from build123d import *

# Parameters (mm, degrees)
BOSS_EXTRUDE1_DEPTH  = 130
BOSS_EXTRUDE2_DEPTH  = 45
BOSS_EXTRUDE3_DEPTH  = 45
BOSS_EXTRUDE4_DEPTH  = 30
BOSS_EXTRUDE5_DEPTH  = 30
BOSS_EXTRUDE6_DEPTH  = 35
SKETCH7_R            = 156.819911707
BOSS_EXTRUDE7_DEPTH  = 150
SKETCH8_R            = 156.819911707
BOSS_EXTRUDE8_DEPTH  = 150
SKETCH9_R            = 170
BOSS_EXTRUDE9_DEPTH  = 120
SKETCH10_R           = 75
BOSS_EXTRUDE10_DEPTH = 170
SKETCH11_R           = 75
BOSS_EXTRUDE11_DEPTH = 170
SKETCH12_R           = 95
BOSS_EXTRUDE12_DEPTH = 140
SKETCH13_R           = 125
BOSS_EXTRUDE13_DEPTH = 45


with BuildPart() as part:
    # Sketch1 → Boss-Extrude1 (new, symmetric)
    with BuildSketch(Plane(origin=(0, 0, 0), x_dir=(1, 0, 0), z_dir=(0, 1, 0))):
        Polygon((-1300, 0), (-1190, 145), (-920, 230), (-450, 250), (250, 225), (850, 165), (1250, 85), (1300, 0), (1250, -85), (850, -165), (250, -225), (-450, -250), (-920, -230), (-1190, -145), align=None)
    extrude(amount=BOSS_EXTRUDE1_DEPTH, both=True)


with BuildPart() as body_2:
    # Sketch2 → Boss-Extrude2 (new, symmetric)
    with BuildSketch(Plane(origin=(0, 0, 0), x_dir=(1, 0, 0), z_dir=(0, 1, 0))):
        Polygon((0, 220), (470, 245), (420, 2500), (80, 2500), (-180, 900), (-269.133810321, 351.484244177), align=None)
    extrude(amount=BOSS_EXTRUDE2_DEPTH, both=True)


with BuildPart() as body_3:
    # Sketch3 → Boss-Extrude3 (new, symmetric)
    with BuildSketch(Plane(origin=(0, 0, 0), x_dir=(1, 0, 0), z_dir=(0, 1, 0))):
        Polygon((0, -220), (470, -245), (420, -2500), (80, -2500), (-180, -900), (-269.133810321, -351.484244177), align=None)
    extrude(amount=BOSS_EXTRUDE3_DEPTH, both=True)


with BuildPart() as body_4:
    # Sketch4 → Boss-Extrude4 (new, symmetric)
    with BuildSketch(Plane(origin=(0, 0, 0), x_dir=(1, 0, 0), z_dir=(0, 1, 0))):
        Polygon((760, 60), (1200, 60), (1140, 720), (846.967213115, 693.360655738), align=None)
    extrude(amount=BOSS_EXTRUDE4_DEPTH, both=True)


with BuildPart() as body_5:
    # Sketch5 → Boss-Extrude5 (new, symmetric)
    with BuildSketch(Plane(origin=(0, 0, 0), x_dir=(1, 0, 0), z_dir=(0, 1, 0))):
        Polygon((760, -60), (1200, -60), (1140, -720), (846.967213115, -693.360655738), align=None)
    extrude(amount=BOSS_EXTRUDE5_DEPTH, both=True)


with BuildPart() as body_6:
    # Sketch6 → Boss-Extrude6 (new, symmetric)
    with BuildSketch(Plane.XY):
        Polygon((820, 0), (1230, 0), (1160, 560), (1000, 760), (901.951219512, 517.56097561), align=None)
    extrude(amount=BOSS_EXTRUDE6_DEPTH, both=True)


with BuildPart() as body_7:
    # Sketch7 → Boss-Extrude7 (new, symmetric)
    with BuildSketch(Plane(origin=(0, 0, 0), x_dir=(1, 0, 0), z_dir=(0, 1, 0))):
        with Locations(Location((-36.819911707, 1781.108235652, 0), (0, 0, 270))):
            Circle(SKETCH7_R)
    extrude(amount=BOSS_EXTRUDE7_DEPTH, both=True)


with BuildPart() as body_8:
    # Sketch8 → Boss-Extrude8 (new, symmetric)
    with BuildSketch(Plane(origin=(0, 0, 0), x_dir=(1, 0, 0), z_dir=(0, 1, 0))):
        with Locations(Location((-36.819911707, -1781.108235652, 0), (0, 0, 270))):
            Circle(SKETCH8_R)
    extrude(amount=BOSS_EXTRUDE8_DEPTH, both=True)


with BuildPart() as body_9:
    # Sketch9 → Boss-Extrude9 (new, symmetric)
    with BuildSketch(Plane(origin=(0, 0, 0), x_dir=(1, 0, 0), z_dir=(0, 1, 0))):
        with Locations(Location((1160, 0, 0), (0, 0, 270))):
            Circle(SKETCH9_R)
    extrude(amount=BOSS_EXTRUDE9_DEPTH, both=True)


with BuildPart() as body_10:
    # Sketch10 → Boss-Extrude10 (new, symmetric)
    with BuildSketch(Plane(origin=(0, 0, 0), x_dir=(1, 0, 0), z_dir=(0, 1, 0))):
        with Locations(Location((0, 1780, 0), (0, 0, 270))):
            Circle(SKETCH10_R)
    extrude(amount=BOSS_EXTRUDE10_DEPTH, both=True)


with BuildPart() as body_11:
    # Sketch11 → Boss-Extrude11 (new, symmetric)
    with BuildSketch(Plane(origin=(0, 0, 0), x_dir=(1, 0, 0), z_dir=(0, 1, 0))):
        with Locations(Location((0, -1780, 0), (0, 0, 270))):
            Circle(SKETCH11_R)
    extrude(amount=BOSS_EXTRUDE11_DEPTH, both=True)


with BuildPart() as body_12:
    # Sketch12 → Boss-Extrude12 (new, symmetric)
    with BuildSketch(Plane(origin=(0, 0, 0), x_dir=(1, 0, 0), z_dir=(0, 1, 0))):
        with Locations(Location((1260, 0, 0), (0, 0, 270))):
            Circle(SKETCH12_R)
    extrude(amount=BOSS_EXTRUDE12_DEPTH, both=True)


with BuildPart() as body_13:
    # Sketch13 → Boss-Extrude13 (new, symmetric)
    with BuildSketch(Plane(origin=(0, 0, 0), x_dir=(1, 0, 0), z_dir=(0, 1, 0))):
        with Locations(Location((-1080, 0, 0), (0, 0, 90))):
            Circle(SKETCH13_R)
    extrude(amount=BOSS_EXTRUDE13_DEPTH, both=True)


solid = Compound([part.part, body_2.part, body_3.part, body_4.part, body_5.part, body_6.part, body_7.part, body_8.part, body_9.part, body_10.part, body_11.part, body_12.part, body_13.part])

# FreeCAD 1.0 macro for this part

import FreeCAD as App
import Part
import Sketcher
Q = App.Units.Quantity


def add_polygon(sketch, points):
    """Adds a closed chain of lines whose ends are joined by coincident constraints."""
    first, n = sketch.GeometryCount, len(points)
    for a, b in zip(points, points[1:] + points[:1]):
        sketch.addGeometry(Part.LineSegment(App.Vector(*a, 0), App.Vector(*b, 0)), False)
    for i in range(n):
        sketch.addConstraint(Sketcher.Constraint("Coincident", first + i, 2, first + (i + 1) % n, 1))

doc = App.newDocument("Part")
body = doc.addObject("PartDesign::Body", "Body")

sketch1 = doc.addObject("Sketcher::SketchObject", "Sketch")
body.addObject(sketch1)
sketch1.AttachmentSupport = (doc.XZ_Plane, [""])
sketch1.MapMode = "FlatFace"
add_polygon(sketch1, [(-1190, -145), (-1300, 0), (-1190, 145), (-920, 230), (-450, 250), (250, 225), (850, 165), (1250, 85), (1300, 0), (1250, -85), (850, -165), (250, -225), (-450, -250), (-920, -230)])
sketch1.addConstraint([
    Sketcher.Constraint("Symmetric", 0, 2, 7, 2, -1, 1),
    Sketcher.Constraint("Symmetric", 6, 2, 8, 2, -1),
    Sketcher.Constraint("Symmetric", 5, 2, 9, 2, -1),
    Sketcher.Constraint("Symmetric", 4, 2, 10, 2, -1),
    Sketcher.Constraint("Symmetric", 3, 2, 11, 2, -1),
    Sketcher.Constraint("Symmetric", 2, 2, 12, 2, -1),
    Sketcher.Constraint("Symmetric", 1, 2, 13, 2, -1),
    Sketcher.Constraint("PointOnObject", 0, 2, -1),
    Sketcher.Constraint("DistanceX", 0, 2, -1, 1, Q("1300 mm")),
    Sketcher.Constraint("DistanceX", 1, 2, -1, 1, Q("1190 mm")),
    Sketcher.Constraint("DistanceY", -1, 1, 1, 2, Q("145 mm")),
    Sketcher.Constraint("DistanceX", 2, 2, -1, 1, Q("920 mm")),
    Sketcher.Constraint("DistanceY", -1, 1, 2, 2, Q("230 mm")),
    Sketcher.Constraint("DistanceX", 3, 2, -1, 1, Q("450 mm")),
    Sketcher.Constraint("DistanceY", -1, 1, 3, 2, Q("250 mm")),
    Sketcher.Constraint("DistanceX", -1, 1, 4, 2, Q("250 mm")),
    Sketcher.Constraint("DistanceY", -1, 1, 4, 2, Q("225 mm")),
    Sketcher.Constraint("DistanceX", -1, 1, 5, 2, Q("850 mm")),
    Sketcher.Constraint("DistanceY", -1, 1, 5, 2, Q("165 mm")),
    Sketcher.Constraint("DistanceX", -1, 1, 6, 2, Q("1250 mm")),
    Sketcher.Constraint("DistanceY", -1, 1, 6, 2, Q("85 mm")),
])
pad1 = doc.addObject("PartDesign::Pad", "Pad")
body.addObject(pad1)
pad1.Profile = sketch1
pad1.Length = 260
pad1.Midplane = True
body2 = doc.addObject("PartDesign::Body", "Body001")

sketch2 = doc.addObject("Sketcher::SketchObject", "Sketch001")
body2.addObject(sketch2)
sketch2.AttachmentSupport = (doc.getObject("XZ_Plane001"), [""])
sketch2.MapMode = "FlatFace"
add_polygon(sketch2, [(0, -220), (470, -245), (420, -2500), (80, -2500), (-269, -351)])
sketch2.addConstraint([
    Sketcher.Constraint("Horizontal", 2),
    Sketcher.Constraint("PointOnObject", 4, 2, -2),
    Sketcher.Constraint("DistanceX", 2, 2, 2, 1, Q("340 mm")),
    Sketcher.Constraint("DistanceX", -1, 1, 0, 2, Q("470 mm")),
    Sketcher.Constraint("DistanceY", 0, 2, -1, 1, Q("245 mm")),
    Sketcher.Constraint("DistanceX", -1, 1, 1, 2, Q("420 mm")),
    Sketcher.Constraint("DistanceY", 1, 2, -1, 1, Q("2500 mm")),
    Sketcher.Constraint("DistanceY", 4, 2, -1, 1, Q("220 mm")),
    Sketcher.Constraint("Distance", 4, Q("299.53483 mm")),
    Sketcher.Constraint("DistanceX", 3, 2, -1, 1, Q("269.13381 mm")),
])
pad2 = doc.addObject("PartDesign::Pad", "Pad001")
body2.addObject(pad2)
pad2.Profile = sketch2
pad2.Length = 90
pad2.Midplane = True
body3 = doc.addObject("PartDesign::Body", "Body002")

sketch3 = doc.addObject("Sketcher::SketchObject", "Sketch002")
body3.addObject(sketch3)
sketch3.AttachmentSupport = (doc.getObject("XZ_Plane002"), [""])
sketch3.MapMode = "FlatFace"
add_polygon(sketch3, [(470, 245), (0, 220), (-269, 351), (80, 2500), (420, 2500)])
sketch3.addConstraint([
    Sketcher.Constraint("Horizontal", 3),
    Sketcher.Constraint("PointOnObject", 0, 2, -2),
    Sketcher.Constraint("DistanceX", 3, 1, 3, 2, Q("340 mm")),
    Sketcher.Constraint("DistanceY", -1, 1, 0, 2, Q("220 mm")),
    Sketcher.Constraint("DistanceX", -1, 1, 2, 2, Q("80 mm")),
    Sketcher.Constraint("DistanceY", -1, 1, 2, 2, Q("2500 mm")),
    Sketcher.Constraint("DistanceX", -1, 1, 4, 2, Q("470 mm")),
    Sketcher.Constraint("DistanceY", -1, 1, 4, 2, Q("245 mm")),
    Sketcher.Constraint("Distance", 1, Q("299.53483 mm")),
    Sketcher.Constraint("DistanceX", 1, 2, -1, 1, Q("269.13381 mm")),
])
pad3 = doc.addObject("PartDesign::Pad", "Pad002")
body3.addObject(pad3)
pad3.Profile = sketch3
pad3.Length = 90
pad3.Midplane = True
body4 = doc.addObject("PartDesign::Body", "Body003")

sketch4 = doc.addObject("Sketcher::SketchObject", "Sketch003")
body4.addObject(sketch4)
sketch4.AttachmentSupport = (doc.getObject("XZ_Plane003"), [""])
sketch4.MapMode = "FlatFace"
add_polygon(sketch4, [(760, -60), (1200, -60), (1140, -720), (847, -693)])
sketch4.addConstraint([
    Sketcher.Constraint("Horizontal", 0),
    Sketcher.Constraint("Perpendicular", 1, 2),
    Sketcher.Constraint("DistanceX", 0, 1, 0, 2, Q("440 mm")),
    Sketcher.Constraint("DistanceX", -1, 1, 0, 2, Q("1200 mm")),
    Sketcher.Constraint("DistanceY", 0, 2, -1, 1, Q("60 mm")),
    Sketcher.Constraint("DistanceX", -1, 1, 1, 2, Q("1140 mm")),
    Sketcher.Constraint("DistanceY", 1, 2, -1, 1, Q("720 mm")),
    Sketcher.Constraint("Distance", 3, Q("639.30354 mm")),
])
pad4 = doc.addObject("PartDesign::Pad", "Pad003")
body4.addObject(pad4)
pad4.Profile = sketch4
pad4.Length = 60
pad4.Midplane = True
body5 = doc.addObject("PartDesign::Body", "Body004")

sketch5 = doc.addObject("Sketcher::SketchObject", "Sketch004")
body5.addObject(sketch5)
sketch5.AttachmentSupport = (doc.getObject("XZ_Plane004"), [""])
sketch5.MapMode = "FlatFace"
add_polygon(sketch5, [(1200, 60), (760, 60), (847, 693), (1140, 720)])
sketch5.addConstraint([
    Sketcher.Constraint("Horizontal", 0),
    Sketcher.Constraint("Perpendicular", 2, 3),
    Sketcher.Constraint("DistanceX", 0, 2, 0, 1, Q("440 mm")),
    Sketcher.Constraint("DistanceX", -1, 1, 0, 2, Q("760 mm")),
    Sketcher.Constraint("DistanceY", -1, 1, 0, 2, Q("60 mm")),
    Sketcher.Constraint("DistanceX", -1, 1, 2, 2, Q("1140 mm")),
    Sketcher.Constraint("DistanceY", -1, 1, 2, 2, Q("720 mm")),
    Sketcher.Constraint("Distance", 1, Q("639.30354 mm")),
])
pad5 = doc.addObject("PartDesign::Pad", "Pad004")
body5.addObject(pad5)
pad5.Profile = sketch5
pad5.Length = 60
pad5.Midplane = True
body6 = doc.addObject("PartDesign::Body", "Body005")

sketch6 = doc.addObject("Sketcher::SketchObject", "Sketch005")
body6.addObject(sketch6)
sketch6.AttachmentSupport = (doc.getObject("XY_Plane005"), [""])
sketch6.MapMode = "FlatFace"
add_polygon(sketch6, [(820, 0), (1230, 0), (1160, 560), (1000, 760), (902, 518)])
sketch6.addConstraint([
    Sketcher.Constraint("Horizontal", 0),
    Sketcher.Constraint("PointOnObject", 0, 2, -1),
    Sketcher.Constraint("DistanceX", 0, 1, 0, 2, Q("410 mm")),
    Sketcher.Constraint("DistanceX", -1, 1, 0, 2, Q("1230 mm")),
    Sketcher.Constraint("DistanceX", -1, 1, 1, 2, Q("1160 mm")),
    Sketcher.Constraint("DistanceY", -1, 1, 1, 2, Q("560 mm")),
    Sketcher.Constraint("DistanceX", -1, 1, 2, 2, Q("1000 mm")),
    Sketcher.Constraint("DistanceY", -1, 1, 2, 2, Q("760 mm")),
    Sketcher.Constraint("DistanceX", -1, 1, 3, 2, Q("901.95122 mm")),
    Sketcher.Constraint("Distance", 3, Q("261.515284 mm")),
])
pad6 = doc.addObject("PartDesign::Pad", "Pad005")
body6.addObject(pad6)
pad6.Profile = sketch6
pad6.Length = 70
pad6.Midplane = True
body7 = doc.addObject("PartDesign::Body", "Body006")

sketch7 = doc.addObject("Sketcher::SketchObject", "Sketch006")
body7.addObject(sketch7)
sketch7.AttachmentSupport = (doc.getObject("XZ_Plane006"), [""])
sketch7.MapMode = "FlatFace"
sketch7.addGeometry(Part.Circle(App.Vector(-37, -1781, 0), App.Vector(0, 0, 1), 157), False)
sketch7.addConstraint([
    Sketcher.Constraint("Diameter", 0, Q("313.639823 mm")),
    Sketcher.Constraint("DistanceX", 0, 3, -1, 1, Q("36.819912 mm")),
    Sketcher.Constraint("DistanceY", 0, 3, -1, 1, Q("1781.108236 mm")),
])
pad7 = doc.addObject("PartDesign::Pad", "Pad006")
body7.addObject(pad7)
pad7.Profile = sketch7
pad7.Length = 300
pad7.Midplane = True
body8 = doc.addObject("PartDesign::Body", "Body007")

sketch8 = doc.addObject("Sketcher::SketchObject", "Sketch007")
body8.addObject(sketch8)
sketch8.AttachmentSupport = (doc.getObject("XZ_Plane007"), [""])
sketch8.MapMode = "FlatFace"
sketch8.addGeometry(Part.Circle(App.Vector(-37, 1781, 0), App.Vector(0, 0, 1), 157), False)
sketch8.addConstraint([
    Sketcher.Constraint("Diameter", 0, Q("313.639823 mm")),
    Sketcher.Constraint("DistanceX", 0, 3, -1, 1, Q("36.819912 mm")),
    Sketcher.Constraint("DistanceY", -1, 1, 0, 3, Q("1781.108236 mm")),
])
pad8 = doc.addObject("PartDesign::Pad", "Pad007")
body8.addObject(pad8)
pad8.Profile = sketch8
pad8.Length = 300
pad8.Midplane = True
body9 = doc.addObject("PartDesign::Body", "Body008")

sketch9 = doc.addObject("Sketcher::SketchObject", "Sketch008")
body9.addObject(sketch9)
sketch9.AttachmentSupport = (doc.getObject("XZ_Plane008"), [""])
sketch9.MapMode = "FlatFace"
sketch9.addGeometry(Part.Circle(App.Vector(1160, 0, 0), App.Vector(0, 0, 1), 170), False)
sketch9.addConstraint([
    Sketcher.Constraint("PointOnObject", 0, 3, -1),
    Sketcher.Constraint("Diameter", 0, Q("340 mm")),
    Sketcher.Constraint("DistanceX", -1, 1, 0, 3, Q("1160 mm")),
])
pad9 = doc.addObject("PartDesign::Pad", "Pad008")
body9.addObject(pad9)
pad9.Profile = sketch9
pad9.Length = 240
pad9.Midplane = True
body10 = doc.addObject("PartDesign::Body", "Body009")

sketch10 = doc.addObject("Sketcher::SketchObject", "Sketch009")
body10.addObject(sketch10)
sketch10.AttachmentSupport = (doc.getObject("XZ_Plane009"), [""])
sketch10.MapMode = "FlatFace"
sketch10.addGeometry(Part.Circle(App.Vector(0, -1780, 0), App.Vector(0, 0, 1), 75), False)
sketch10.addConstraint([
    Sketcher.Constraint("PointOnObject", 0, 3, -2),
    Sketcher.Constraint("Diameter", 0, Q("150 mm")),
    Sketcher.Constraint("DistanceY", 0, 3, -1, 1, Q("1780 mm")),
])
pad10 = doc.addObject("PartDesign::Pad", "Pad009")
body10.addObject(pad10)
pad10.Profile = sketch10
pad10.Length = 340
pad10.Midplane = True
body11 = doc.addObject("PartDesign::Body", "Body010")

sketch11 = doc.addObject("Sketcher::SketchObject", "Sketch010")
body11.addObject(sketch11)
sketch11.AttachmentSupport = (doc.getObject("XZ_Plane010"), [""])
sketch11.MapMode = "FlatFace"
sketch11.addGeometry(Part.Circle(App.Vector(0, 1780, 0), App.Vector(0, 0, 1), 75), False)
sketch11.addConstraint([
    Sketcher.Constraint("PointOnObject", 0, 3, -2),
    Sketcher.Constraint("Diameter", 0, Q("150 mm")),
    Sketcher.Constraint("DistanceY", -1, 1, 0, 3, Q("1780 mm")),
])
pad11 = doc.addObject("PartDesign::Pad", "Pad010")
body11.addObject(pad11)
pad11.Profile = sketch11
pad11.Length = 340
pad11.Midplane = True
body12 = doc.addObject("PartDesign::Body", "Body011")

sketch12 = doc.addObject("Sketcher::SketchObject", "Sketch011")
body12.addObject(sketch12)
sketch12.AttachmentSupport = (doc.getObject("XZ_Plane011"), [""])
sketch12.MapMode = "FlatFace"
sketch12.addGeometry(Part.Circle(App.Vector(1260, 0, 0), App.Vector(0, 0, 1), 95), False)
sketch12.addConstraint([
    Sketcher.Constraint("PointOnObject", 0, 3, -1),
    Sketcher.Constraint("Diameter", 0, Q("190 mm")),
    Sketcher.Constraint("DistanceX", -1, 1, 0, 3, Q("1260 mm")),
])
pad12 = doc.addObject("PartDesign::Pad", "Pad011")
body12.addObject(pad12)
pad12.Profile = sketch12
pad12.Length = 280
pad12.Midplane = True
body13 = doc.addObject("PartDesign::Body", "Body012")

sketch13 = doc.addObject("Sketcher::SketchObject", "Sketch012")
body13.addObject(sketch13)
sketch13.AttachmentSupport = (doc.getObject("XZ_Plane012"), [""])
sketch13.MapMode = "FlatFace"
sketch13.addGeometry(Part.Circle(App.Vector(-1080, 0, 0), App.Vector(0, 0, 1), 125), False)
sketch13.addConstraint([
    Sketcher.Constraint("PointOnObject", 0, 3, -1),
    Sketcher.Constraint("Diameter", 0, Q("250 mm")),
    Sketcher.Constraint("DistanceX", 0, 3, -1, 1, Q("1080 mm")),
])
pad13 = doc.addObject("PartDesign::Pad", "Pad012")
body13.addObject(pad13)
pad13.Profile = sketch13
pad13.Length = 90
pad13.Midplane = True

doc.recompute()
